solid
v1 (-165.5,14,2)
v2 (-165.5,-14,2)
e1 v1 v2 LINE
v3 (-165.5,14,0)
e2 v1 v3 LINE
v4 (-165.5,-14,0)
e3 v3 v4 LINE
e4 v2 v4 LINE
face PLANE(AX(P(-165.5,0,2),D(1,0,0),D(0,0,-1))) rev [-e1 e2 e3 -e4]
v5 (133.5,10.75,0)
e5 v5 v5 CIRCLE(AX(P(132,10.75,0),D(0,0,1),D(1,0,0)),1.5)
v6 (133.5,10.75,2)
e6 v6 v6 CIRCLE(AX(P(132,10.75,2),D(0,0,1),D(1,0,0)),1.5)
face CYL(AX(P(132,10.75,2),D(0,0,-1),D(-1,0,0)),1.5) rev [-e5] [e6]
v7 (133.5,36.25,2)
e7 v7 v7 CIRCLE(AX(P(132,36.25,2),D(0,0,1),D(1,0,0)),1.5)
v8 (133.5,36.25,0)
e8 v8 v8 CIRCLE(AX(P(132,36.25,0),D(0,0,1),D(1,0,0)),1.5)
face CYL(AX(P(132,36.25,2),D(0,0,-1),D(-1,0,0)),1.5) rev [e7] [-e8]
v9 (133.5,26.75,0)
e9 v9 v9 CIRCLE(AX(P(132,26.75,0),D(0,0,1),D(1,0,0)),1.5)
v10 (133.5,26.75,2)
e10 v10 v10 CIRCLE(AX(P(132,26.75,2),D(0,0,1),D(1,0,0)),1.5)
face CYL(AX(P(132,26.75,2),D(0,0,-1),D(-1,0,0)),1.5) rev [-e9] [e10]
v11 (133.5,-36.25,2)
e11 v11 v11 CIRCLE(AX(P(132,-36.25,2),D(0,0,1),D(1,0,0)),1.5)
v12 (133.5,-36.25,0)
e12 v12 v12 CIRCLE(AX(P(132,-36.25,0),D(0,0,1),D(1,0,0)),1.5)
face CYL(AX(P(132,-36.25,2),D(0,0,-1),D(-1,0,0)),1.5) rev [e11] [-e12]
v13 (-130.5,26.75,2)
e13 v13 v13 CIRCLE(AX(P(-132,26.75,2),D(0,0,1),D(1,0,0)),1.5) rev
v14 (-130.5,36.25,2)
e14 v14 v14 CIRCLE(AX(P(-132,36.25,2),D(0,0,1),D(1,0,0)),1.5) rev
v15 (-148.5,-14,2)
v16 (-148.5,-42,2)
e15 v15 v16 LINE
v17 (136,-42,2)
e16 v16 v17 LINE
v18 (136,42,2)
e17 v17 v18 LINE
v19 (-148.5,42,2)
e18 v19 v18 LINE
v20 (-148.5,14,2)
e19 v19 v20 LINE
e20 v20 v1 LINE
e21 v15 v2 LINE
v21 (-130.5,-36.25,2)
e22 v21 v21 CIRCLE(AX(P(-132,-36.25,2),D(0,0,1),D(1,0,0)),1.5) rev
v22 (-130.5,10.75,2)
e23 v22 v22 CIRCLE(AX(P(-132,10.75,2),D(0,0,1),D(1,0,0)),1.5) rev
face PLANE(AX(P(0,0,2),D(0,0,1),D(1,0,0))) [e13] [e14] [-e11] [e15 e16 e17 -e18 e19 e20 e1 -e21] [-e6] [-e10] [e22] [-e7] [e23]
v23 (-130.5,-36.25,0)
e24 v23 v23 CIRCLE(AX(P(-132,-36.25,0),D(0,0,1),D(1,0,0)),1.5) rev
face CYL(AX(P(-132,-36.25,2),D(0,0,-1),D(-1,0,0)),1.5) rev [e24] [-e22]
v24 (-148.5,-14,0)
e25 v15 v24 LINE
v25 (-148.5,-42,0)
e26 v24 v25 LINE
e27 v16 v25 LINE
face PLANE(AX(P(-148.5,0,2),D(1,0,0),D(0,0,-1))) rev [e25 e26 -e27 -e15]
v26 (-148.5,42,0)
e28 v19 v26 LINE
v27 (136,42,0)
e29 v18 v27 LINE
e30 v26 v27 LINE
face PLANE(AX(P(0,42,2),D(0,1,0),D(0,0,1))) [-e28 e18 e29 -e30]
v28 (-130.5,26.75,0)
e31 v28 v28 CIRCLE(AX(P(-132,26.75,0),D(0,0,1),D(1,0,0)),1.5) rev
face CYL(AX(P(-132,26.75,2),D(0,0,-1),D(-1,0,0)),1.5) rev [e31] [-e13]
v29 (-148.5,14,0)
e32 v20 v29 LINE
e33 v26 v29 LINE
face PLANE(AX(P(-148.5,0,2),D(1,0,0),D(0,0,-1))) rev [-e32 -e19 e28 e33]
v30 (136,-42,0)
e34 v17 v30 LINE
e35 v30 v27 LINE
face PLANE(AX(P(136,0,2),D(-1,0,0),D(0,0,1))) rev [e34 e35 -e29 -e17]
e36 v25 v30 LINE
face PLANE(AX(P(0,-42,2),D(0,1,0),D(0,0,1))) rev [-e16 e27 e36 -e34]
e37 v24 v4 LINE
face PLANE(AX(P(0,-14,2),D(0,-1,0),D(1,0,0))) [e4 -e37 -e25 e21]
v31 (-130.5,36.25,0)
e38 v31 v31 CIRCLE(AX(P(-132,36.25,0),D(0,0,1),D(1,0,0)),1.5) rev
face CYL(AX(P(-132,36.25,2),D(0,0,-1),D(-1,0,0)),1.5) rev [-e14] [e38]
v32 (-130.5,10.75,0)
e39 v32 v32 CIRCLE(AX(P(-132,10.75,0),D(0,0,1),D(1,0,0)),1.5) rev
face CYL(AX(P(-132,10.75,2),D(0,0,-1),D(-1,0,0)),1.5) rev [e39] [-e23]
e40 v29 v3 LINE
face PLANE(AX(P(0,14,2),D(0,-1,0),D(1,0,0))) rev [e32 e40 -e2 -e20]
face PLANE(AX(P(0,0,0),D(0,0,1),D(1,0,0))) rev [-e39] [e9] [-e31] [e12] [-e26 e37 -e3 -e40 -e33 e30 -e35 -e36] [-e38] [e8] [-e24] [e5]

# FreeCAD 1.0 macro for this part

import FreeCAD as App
import Part
import Sketcher

V = App.Vector


def add_polygon(sketch, points):
    """Adds a closed chain of lines whose ends are joined by coincident constraints."""
    first, n = sketch.GeometryCount, len(points)
    for a, b in zip(points, points[1:] + points[:1]):
        sketch.addGeometry(Part.LineSegment(App.Vector(*a, 0), App.Vector(*b, 0)), False)
    for i in range(n):
        sketch.addConstraint(Sketcher.Constraint("Coincident", first + i, 2, first + (i + 1) % n, 1))

doc = App.newDocument("Part")
body = doc.addObject("PartDesign::Body", "Body")

sketch1 = body.newObject("Sketcher::SketchObject", "Sketch")
sketch1.AttachmentSupport = (doc.getObject("XY_Plane"), [""])
sketch1.MapMode = "FlatFace"
add_polygon(sketch1, [(136, -42), (136, 42), (-148.5, 42), (-148.5, 14), (-165.5, 14), (-165.5, -14), (-148.5, -14), (-148.5, -42)])
sketch1.addGeometry(Part.Circle(V(-132, -36.2, 0), V(0, 0, 1), 1.5), False)
sketch1.addGeometry(Part.Circle(V(132, -36.2, 0), V(0, 0, 1), 1.5), False)
sketch1.addGeometry(Part.Circle(V(-132, 10.8, 0), V(0, 0, 1), 1.5), False)
sketch1.addGeometry(Part.Circle(V(-132, 26.8, 0), V(0, 0, 1), 1.5), False)
sketch1.addGeometry(Part.Circle(V(-132, 36.2, 0), V(0, 0, 1), 1.5), False)
sketch1.addGeometry(Part.Circle(V(132, 10.8, 0), V(0, 0, 1), 1.5), False)
sketch1.addGeometry(Part.Circle(V(132, 26.8, 0), V(0, 0, 1), 1.5), False)
sketch1.addGeometry(Part.Circle(V(132, 36.2, 0), V(0, 0, 1), 1.5), False)
sketch1.addConstraint([
    Sketcher.Constraint("Vertical", 0),
    Sketcher.Constraint("Horizontal", 1),
    Sketcher.Constraint("Vertical", 2),
    Sketcher.Constraint("Horizontal", 3),
    Sketcher.Constraint("Vertical", 4),
    Sketcher.Constraint("Horizontal", 5),
    Sketcher.Constraint("Vertical", 6),
    Sketcher.Constraint("Horizontal", 7),
    Sketcher.Constraint("Equal", 8, 9),
    Sketcher.Constraint("Equal", 9, 10),
    Sketcher.Constraint("Equal", 10, 11),
    Sketcher.Constraint("Equal", 11, 12),
    Sketcher.Constraint("Equal", 12, 13),
    Sketcher.Constraint("Equal", 13, 14),
    Sketcher.Constraint("Equal", 14, 15),
    Sketcher.Constraint("Symmetric", 9, 3, 12, 3, -1, 1),
    Sketcher.Constraint("Symmetric", 8, 3, 15, 3, -1, 1),
    Sketcher.Constraint("Symmetric", 8, 3, 9, 3, -2),
    Sketcher.Constraint("Symmetric", 10, 3, 13, 3, -2),
    Sketcher.Constraint("Symmetric", 11, 3, 14, 3, -2),
    Sketcher.Constraint("Symmetric", 2, 2, 5, 2, -1),
    Sketcher.Constraint("Vertical", 8, 3, 10, 3),
    Sketcher.Constraint("Vertical", 10, 3, 11, 3),
    Sketcher.Constraint("Equal", 2, 4),
    Sketcher.Constraint("Equal", 4, 6),
    Sketcher.Constraint("Diameter", 8, 3.0),
    Sketcher.Constraint("DistanceX", 3, 2, 3, 1, 17.0),
    Sketcher.Constraint("DistanceY", 0, 1, 0, 2, 84.0),
    Sketcher.Constraint("DistanceX", 1, 2, 1, 1, 284.5),
    Sketcher.Constraint("DistanceX", 8, 3, -1, 1, 132.0),
    Sketcher.Constraint("DistanceX", -1, 1, 0, 2, 136.0),
    Sketcher.Constraint("DistanceY", 8, 3, 10, 3, 47.0),
    Sketcher.Constraint("DistanceY", 10, 3, 11, 3, 16.0),
    Sketcher.Constraint("DistanceY", 11, 3, 12, 3, 9.5),
])
pad1 = body.newObject("PartDesign::Pad", "Pad")
pad1.Profile = sketch1
pad1.Length = 2

doc.recompute()
